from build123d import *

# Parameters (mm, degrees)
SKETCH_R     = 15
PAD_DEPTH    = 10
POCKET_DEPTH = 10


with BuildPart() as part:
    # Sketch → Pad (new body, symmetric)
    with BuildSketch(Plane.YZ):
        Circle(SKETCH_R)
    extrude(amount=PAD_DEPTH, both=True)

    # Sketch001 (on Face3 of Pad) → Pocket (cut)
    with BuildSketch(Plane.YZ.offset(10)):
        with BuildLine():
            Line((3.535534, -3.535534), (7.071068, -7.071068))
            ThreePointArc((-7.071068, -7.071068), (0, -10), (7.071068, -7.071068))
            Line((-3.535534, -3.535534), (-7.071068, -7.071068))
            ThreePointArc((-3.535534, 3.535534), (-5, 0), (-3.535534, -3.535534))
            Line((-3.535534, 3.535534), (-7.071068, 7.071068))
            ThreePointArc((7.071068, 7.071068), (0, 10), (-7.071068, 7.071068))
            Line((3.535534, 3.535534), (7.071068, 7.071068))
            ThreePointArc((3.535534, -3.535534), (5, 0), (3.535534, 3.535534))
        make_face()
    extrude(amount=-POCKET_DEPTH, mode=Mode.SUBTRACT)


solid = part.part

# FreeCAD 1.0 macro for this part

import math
import FreeCAD as App
import Part
import Sketcher
from FreeCAD import Vector
Q = App.Units.Quantity

doc = App.newDocument("Part")
body = doc.addObject("PartDesign::Body", "Body")

# Sketch on YZ plane
sketch1 = doc.addObject("Sketcher::SketchObject", "Sketch")
body.addObject(sketch1)
sketch1.AttachmentSupport = (doc.YZ_Plane, [""])
sketch1.MapMode = "FlatFace"
sketch1.addGeometry(Part.Circle(Vector(0, 0, 0), Vector(0, 0, 1), 15), False)
sketch1.addConstraint([
    Sketcher.Constraint("Coincident", 0, 3, -1, 1),
    Sketcher.Constraint("Diameter", 0, Q("30 mm")),
])
pad1 = doc.addObject("PartDesign::Pad", "Pad")
body.addObject(pad1)
pad1.Profile = sketch1
pad1.Length = 20
pad1.Midplane = True

# Sketch on YZ plane
sketch2 = doc.addObject("Sketcher::SketchObject", "Sketch001")
body.addObject(sketch2)
sketch2.AttachmentSupport = (doc.YZ_Plane, [""])
sketch2.MapMode = "FlatFace"
sketch2.AttachmentOffset = App.Placement(Vector(0, 0, 10), App.Rotation())
sketch2.addGeometry([
    Part.LineSegment(Vector(7.071068, -7.071068, 0), Vector(3.535534, -3.535534, 0)),  # 0
    Part.ArcOfCircle(Part.Circle(Vector(0, 0, 0), Vector(0, 0, 1), 5), math.radians(-44.999996), math.radians(44.999996)),  # 1
    Part.LineSegment(Vector(3.535534, 3.535534, 0), Vector(7.071068, 7.071068, 0)),  # 2
    Part.ArcOfCircle(Part.Circle(Vector(0, -0.000001, 0), Vector(0, 0, 1), 10.000001), math.radians(45.000004), math.radians(134.999996)),  # 3
    Part.LineSegment(Vector(-7.071068, 7.071068, 0), Vector(-3.535534, 3.535534, 0)),  # 4
    Part.ArcOfCircle(Part.Circle(Vector(0, 0, 0), Vector(0, 0, 1), 5), math.radians(135.000004), math.radians(224.999996)),  # 5
    Part.LineSegment(Vector(-3.535534, -3.535534, 0), Vector(-7.071068, -7.071068, 0)),  # 6
    Part.ArcOfCircle(Part.Circle(Vector(0, 0.000001, 0), Vector(0, 0, 1), 10.000001), math.radians(-134.999996), math.radians(-45.000004)),  # 7
], False)
sketch2.addConstraint([
    Sketcher.Constraint("Coincident", 0, 2, 1, 1),
    Sketcher.Constraint("Coincident", 1, 2, 2, 1),
    Sketcher.Constraint("Coincident", 2, 2, 3, 1),
    Sketcher.Constraint("Coincident", 3, 2, 4, 1),
    Sketcher.Constraint("Coincident", 4, 2, 5, 1),
    Sketcher.Constraint("Coincident", 5, 2, 6, 1),
    Sketcher.Constraint("Coincident", 6, 2, 7, 1),
    Sketcher.Constraint("Coincident", 7, 2, 0, 1),
    Sketcher.Constraint("Coincident", 1, 3, -1, 1),
    Sketcher.Constraint("Coincident", 3, 3, -1, 1),
    Sketcher.Constraint("Coincident", 5, 3, -1, 1),
    Sketcher.Constraint("Coincident", 7, 3, -1, 1),
    Sketcher.Constraint("Equal", 1, 5),
    Sketcher.Constraint("Equal", 3, 7),
    Sketcher.Constraint("Perpendicular", 0, 2),
    Sketcher.Constraint("Perpendicular", 2, 4),
    Sketcher.Constraint("Perpendicular", 4, 6),
    Sketcher.Constraint("Horizontal", 2, 2, 3, 2),
    Sketcher.Constraint("Horizontal", 1, 2, 4, 2),
    Sketcher.Constraint("Horizontal", 0, 2, 5, 2),
    Sketcher.Constraint("Vertical", 0, 2, 1, 2),
    Sketcher.Constraint("Radius", 1, Q("5 mm")),
    Sketcher.Constraint("Radius", 3, Q("10.000001 mm")),
    Sketcher.Constraint("DistanceX", 3, 2, 1, 2, Q("10.606602 mm")),
])
pocket1 = doc.addObject("PartDesign::Pocket", "Pocket")
body.addObject(pocket1)
pocket1.Profile = sketch2
pocket1.Length = 10

doc.recompute()
